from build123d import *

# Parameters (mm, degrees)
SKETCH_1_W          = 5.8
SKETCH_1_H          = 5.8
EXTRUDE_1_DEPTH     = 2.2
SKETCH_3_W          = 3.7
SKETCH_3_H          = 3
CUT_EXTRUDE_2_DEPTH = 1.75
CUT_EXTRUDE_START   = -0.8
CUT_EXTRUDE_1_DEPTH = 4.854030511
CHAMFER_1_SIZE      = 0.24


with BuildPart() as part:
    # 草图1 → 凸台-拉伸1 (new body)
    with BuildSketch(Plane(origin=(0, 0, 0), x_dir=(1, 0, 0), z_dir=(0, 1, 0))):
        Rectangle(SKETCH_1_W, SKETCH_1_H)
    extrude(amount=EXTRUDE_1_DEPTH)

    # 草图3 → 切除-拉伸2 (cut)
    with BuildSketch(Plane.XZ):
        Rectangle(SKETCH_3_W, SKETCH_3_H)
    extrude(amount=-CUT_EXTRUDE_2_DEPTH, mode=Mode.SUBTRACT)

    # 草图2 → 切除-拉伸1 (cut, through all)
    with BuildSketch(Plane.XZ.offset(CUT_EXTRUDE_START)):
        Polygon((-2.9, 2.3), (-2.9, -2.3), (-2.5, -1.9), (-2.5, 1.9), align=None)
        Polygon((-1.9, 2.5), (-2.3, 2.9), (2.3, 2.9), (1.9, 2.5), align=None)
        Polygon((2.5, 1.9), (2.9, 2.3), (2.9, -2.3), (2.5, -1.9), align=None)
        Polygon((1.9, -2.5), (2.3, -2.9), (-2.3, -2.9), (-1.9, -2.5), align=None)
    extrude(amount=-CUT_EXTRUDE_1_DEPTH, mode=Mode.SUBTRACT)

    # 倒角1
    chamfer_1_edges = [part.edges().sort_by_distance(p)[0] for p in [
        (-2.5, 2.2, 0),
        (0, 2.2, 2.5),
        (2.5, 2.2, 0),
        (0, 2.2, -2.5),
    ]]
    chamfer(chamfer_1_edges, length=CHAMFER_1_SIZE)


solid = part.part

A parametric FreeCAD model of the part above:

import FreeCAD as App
import Part
import Sketcher
from FreeCAD import Vector
Q = App.Units.Quantity


def edges_at(feature, points):
    """Names of the edges that pass closest to the given points."""
    edges = feature.Shape.Edges
    near = lambda p: min(range(len(edges)), key=lambda i: edges[i].distToShape(Part.Vertex(*p))[0])
    return sorted({f"Edge{near(p) + 1}" for p in points})


def add_polygon(sketch, points):
    """Adds a closed chain of lines whose ends are joined by coincident constraints."""
    first, n = sketch.GeometryCount, len(points)
    for a, b in zip(points, points[1:] + points[:1]):
        sketch.addGeometry(Part.LineSegment(App.Vector(*a, 0), App.Vector(*b, 0)), False)
    for i in range(n):
        sketch.addConstraint(Sketcher.Constraint("Coincident", first + i, 2, first + (i + 1) % n, 1))

doc = App.newDocument("Part")
params = doc.addObject("Spreadsheet::Sheet", "Params")
for row, (alias, value) in enumerate([
    ("sketch1_width", "5.8 mm"),
    ("pad1_length", "2.2 mm"),
    ("sketch2_height", "3 mm"),
    ("sketch2_width", "3.7 mm"),
    ("pocket1_length", "1.75 mm"),
    ("sketch3_width", "3.8 mm"),
    ("sketch3_width2", "4.6 mm"),
    ("chamfer_size", "0.24 mm"),
], start=1):
    params.set(f"A{row}", alias)
    params.set(f"B{row}", "=" + value)
    params.setAlias(f"B{row}", alias)

body = doc.addObject("PartDesign::Body", "Body")

# Sketch on XZ plane
sketch1 = doc.addObject("Sketcher::SketchObject", "Sketch")
body.addObject(sketch1)
sketch1.AttachmentSupport = (doc.XZ_Plane, [""])
sketch1.MapMode = "FlatFace"
add_polygon(sketch1, [(-3, -3), (-3, 3), (3, 3), (3, -3)])  # lines 0-3
sketch1.addConstraint(Sketcher.Constraint("Vertical", 0))
sketch1.addConstraint(Sketcher.Constraint("Horizontal", 1))
sketch1.addConstraint(Sketcher.Constraint("Vertical", 2))
sketch1.addConstraint(Sketcher.Constraint("Horizontal", 3))
sketch1.addConstraint(Sketcher.Constraint("Symmetric", 0, 2, 2, 2, -1, 1))
sketch1.addConstraint(Sketcher.Constraint("Equal", 3, 0))
sketch1.addConstraint(Sketcher.Constraint("DistanceX", 1, 1, 1, 2, Q("5.8 mm")))
sketch1.setExpression("Constraints[10]", "Params.sketch1_width")
pad1 = doc.addObject("PartDesign::Pad", "Pad")
body.addObject(pad1)
pad1.Profile = sketch1
pad1.setExpression("Length", "Params.pad1_length")
pad1.Reversed = True

# Sketch on XZ plane
sketch2 = doc.addObject("Sketcher::SketchObject", "Sketch001")
body.addObject(sketch2)
sketch2.AttachmentSupport = (doc.XZ_Plane, [""])
sketch2.MapMode = "FlatFace"
add_polygon(sketch2, [(-1.9, 1.5), (-1.9, -1.5), (1.9, -1.5), (1.9, 1.5)])  # lines 0-3
sketch2.addConstraint(Sketcher.Constraint("Vertical", 0))
sketch2.addConstraint(Sketcher.Constraint("Horizontal", 1))
sketch2.addConstraint(Sketcher.Constraint("Vertical", 2))
sketch2.addConstraint(Sketcher.Constraint("Horizontal", 3))
sketch2.addConstraint(Sketcher.Constraint("Symmetric", 0, 2, 2, 2, -1, 1))
sketch2.addConstraint(Sketcher.Constraint("DistanceY", 0, 2, 0, 1, Q("3 mm")))
sketch2.addConstraint(Sketcher.Constraint("DistanceX", 1, 1, 1, 2, Q("3.7 mm")))
sketch2.setExpression("Constraints[9]", "Params.sketch2_height")
sketch2.setExpression("Constraints[10]", "Params.sketch2_width")
pocket1 = doc.addObject("PartDesign::Pocket", "Pocket")
body.addObject(pocket1)
pocket1.Profile = sketch2
pocket1.setExpression("Length", "Params.pocket1_length")

# Sketch on XZ plane
sketch3 = doc.addObject("Sketcher::SketchObject", "Sketch002")
body.addObject(sketch3)
sketch3.AttachmentSupport = (doc.XZ_Plane, [""])
sketch3.MapMode = "FlatFace"
sketch3.AttachmentOffset = App.Placement(Vector(0, 0, -0.8), App.Rotation())
add_polygon(sketch3, [(-2.9, 2.3), (-2.9, -2.3), (-2.5, -1.9), (-2.5, 1.9)])  # lines 0-3
add_polygon(sketch3, [(-2.3, 2.9), (-1.9, 2.5), (1.9, 2.5), (2.3, 2.9)])  # lines 4-7
add_polygon(sketch3, [(2.9, 2.3), (2.5, 1.9), (2.5, -1.9), (2.9, -2.3)])  # lines 8-11
add_polygon(sketch3, [(2.3, -2.9), (1.9, -2.5), (-1.9, -2.5), (-2.3, -2.9)])  # lines 12-15
sketch3.addConstraint(Sketcher.Constraint("Vertical", 0))
sketch3.addConstraint(Sketcher.Constraint("Vertical", 2))
sketch3.addConstraint(Sketcher.Constraint("Horizontal", 5))
sketch3.addConstraint(Sketcher.Constraint("Horizontal", 7))
sketch3.addConstraint(Sketcher.Constraint("Vertical", 9))
sketch3.addConstraint(Sketcher.Constraint("Vertical", 11))
sketch3.addConstraint(Sketcher.Constraint("Horizontal", 13))
sketch3.addConstraint(Sketcher.Constraint("Horizontal", 15))
sketch3.addConstraint(Sketcher.Constraint("Symmetric", 1, 2, 8, 2, -1, 1))
sketch3.addConstraint(Sketcher.Constraint("Symmetric", 3, 2, 10, 2, -1, 1))
sketch3.addConstraint(Sketcher.Constraint("Symmetric", 4, 2, 12, 2, -1, 1))
sketch3.addConstraint(Sketcher.Constraint("Symmetric", 6, 2, 14, 2, -1, 1))
sketch3.addConstraint(Sketcher.Constraint("Perpendicular", 1, 3))
sketch3.addConstraint(Sketcher.Constraint("Parallel", 3, 4))
sketch3.addConstraint(Sketcher.Constraint("Perpendicular", 4, 6))
sketch3.addConstraint(Sketcher.Constraint("Parallel", 6, 8))
sketch3.addConstraint(Sketcher.Constraint("Perpendicular", 8, 10))
sketch3.addConstraint(Sketcher.Constraint("Parallel", 10, 12))
sketch3.addConstraint(Sketcher.Constraint("Perpendicular", 12, 14))
sketch3.addConstraint(Sketcher.Constraint("Horizontal", 2, 2, 8, 2))
sketch3.addConstraint(Sketcher.Constraint("Horizontal", 0, 2, 10, 2))
sketch3.addConstraint(Sketcher.Constraint("Vertical", 5, 2, 12, 2))
sketch3.addConstraint(Sketcher.Constraint("Equal", 15, 0))
sketch3.addConstraint(Sketcher.Constraint("Equal", 13, 2))
sketch3.addConstraint(Sketcher.Constraint("DistanceX", 5, 1, 5, 2, Q("3.8 mm")))
sketch3.addConstraint(Sketcher.Constraint("DistanceX", 7, 2, 7, 1, Q("4.6 mm")))
sketch3.addConstraint(Sketcher.Constraint("DistanceX", 3, 2, 4, 2, Q("1 mm")))
sketch3.addConstraint(Sketcher.Constraint("DistanceY", 2, 2, 6, 2, Q("1 mm")))
sketch3.setExpression("Constraints[40]", "Params.sketch3_width")
sketch3.setExpression("Constraints[41]", "Params.sketch3_width2")
pocket2 = doc.addObject("PartDesign::Pocket", "Pocket001")
body.addObject(pocket2)
pocket2.Profile = sketch3
pocket2.Type = "ThroughAll"
doc.recompute()

chamfer = doc.addObject("PartDesign::Chamfer", "Chamfer")
body.addObject(chamfer)
chamfer.Base = (pocket2, edges_at(pocket2, [
    (-2.5, 2.2, 0),
    (0, 2.2, 2.5),
    (2.5, 2.2, 0),
    (0, 2.2, -2.5),
]))
chamfer.setExpression("Size", "Params.chamfer_size")

doc.recompute()
